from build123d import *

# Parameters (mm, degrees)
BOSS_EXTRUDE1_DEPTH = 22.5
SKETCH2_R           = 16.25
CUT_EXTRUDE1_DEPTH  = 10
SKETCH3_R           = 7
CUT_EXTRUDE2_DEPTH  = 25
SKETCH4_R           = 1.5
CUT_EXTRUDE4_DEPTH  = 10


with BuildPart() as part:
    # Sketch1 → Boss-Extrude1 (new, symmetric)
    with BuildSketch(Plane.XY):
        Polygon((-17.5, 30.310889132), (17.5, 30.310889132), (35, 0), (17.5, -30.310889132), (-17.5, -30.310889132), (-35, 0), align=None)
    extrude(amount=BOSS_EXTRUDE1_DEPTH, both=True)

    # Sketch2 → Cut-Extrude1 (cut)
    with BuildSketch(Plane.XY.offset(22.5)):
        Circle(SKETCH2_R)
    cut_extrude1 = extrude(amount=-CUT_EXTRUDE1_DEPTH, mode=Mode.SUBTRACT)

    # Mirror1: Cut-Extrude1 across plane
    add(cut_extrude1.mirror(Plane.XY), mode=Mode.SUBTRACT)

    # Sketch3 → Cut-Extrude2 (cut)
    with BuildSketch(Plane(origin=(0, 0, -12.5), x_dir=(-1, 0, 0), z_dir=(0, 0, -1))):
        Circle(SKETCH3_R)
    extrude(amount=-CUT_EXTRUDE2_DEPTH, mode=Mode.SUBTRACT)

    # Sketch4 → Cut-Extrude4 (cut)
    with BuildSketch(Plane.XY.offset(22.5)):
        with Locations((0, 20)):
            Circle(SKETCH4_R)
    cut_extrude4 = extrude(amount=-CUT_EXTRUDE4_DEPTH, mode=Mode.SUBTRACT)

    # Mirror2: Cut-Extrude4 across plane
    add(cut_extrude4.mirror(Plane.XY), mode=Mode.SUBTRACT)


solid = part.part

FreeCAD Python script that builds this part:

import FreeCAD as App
import Part
import Sketcher
Q = App.Units.Quantity

doc = App.newDocument("Part")
body = doc.addObject("PartDesign::Body", "Body")

sketch1 = body.newObject("Sketcher::SketchObject", "Sketch")
sketch1.AttachmentSupport = (doc.getObject("XY_Plane"), [""])
sketch1.MapMode = "FlatFace"
sketch1.addGeometry([
    Part.LineSegment(App.Vector(17.5, 30.310889, 0), App.Vector(-17.5, 30.310889, 0)),
    Part.LineSegment(App.Vector(-17.5, 30.310889, 0), App.Vector(-35, 0, 0)),
    Part.LineSegment(App.Vector(-35, 0, 0), App.Vector(-17.5, -30.310889, 0)),
    Part.LineSegment(App.Vector(-17.5, -30.310889, 0), App.Vector(17.5, -30.310889, 0)),
    Part.LineSegment(App.Vector(17.5, -30.310889, 0), App.Vector(35, 0, 0)),
    Part.LineSegment(App.Vector(35, 0, 0), App.Vector(17.5, 30.310889, 0)),
], False)
sketch1.addConstraint([
    Sketcher.Constraint("Coincident", 0, 2, 1, 1),
    Sketcher.Constraint("Coincident", 1, 2, 2, 1),
    Sketcher.Constraint("Coincident", 2, 2, 3, 1),
    Sketcher.Constraint("Coincident", 3, 2, 4, 1),
    Sketcher.Constraint("Coincident", 4, 2, 5, 1),
    Sketcher.Constraint("Coincident", 5, 2, 0, 1),
    Sketcher.Constraint("Horizontal", 0),
    Sketcher.Constraint("Horizontal", 3),
    Sketcher.Constraint("Symmetric", 0, 2, 3, 2, -1, 1),
    Sketcher.Constraint("Symmetric", 1, 2, 4, 2, -1, 1),
    Sketcher.Constraint("PointOnObject", 1, 2, -1),
    Sketcher.Constraint("Parallel", 2, 5),
    Sketcher.Constraint("Vertical", 0, 2, 2, 2),
    Sketcher.Constraint("DistanceX", 0, 2, 0, 1, Q("35 mm")),
    Sketcher.Constraint("Angle", 1, Q("-120 deg")),
    Sketcher.Constraint("Distance", 1, Q("35 mm")),
])
pad1 = body.newObject("PartDesign::Pad", "Pad")
pad1.Profile = sketch1
pad1.Length = 45
pad1.Midplane = True

sketch2 = body.newObject("Sketcher::SketchObject", "Sketch001")
sketch2.AttachmentSupport = (doc.getObject("XY_Plane"), [""])
sketch2.MapMode = "FlatFace"
sketch2.AttachmentOffset = App.Placement(App.Vector(0, 0, 22.5), App.Rotation())
sketch2.addGeometry(Part.Circle(App.Vector(0, 0, 0), App.Vector(0, 0, 1), 16.25), False)
sketch2.addConstraint([
    Sketcher.Constraint("Coincident", 0, 3, -1, 1),
    Sketcher.Constraint("Diameter", 0, Q("32.5 mm")),
])
pocket1 = body.newObject("PartDesign::Pocket", "Pocket")
pocket1.Profile = sketch2
pocket1.Length = 10
doc.recompute()

mirrored = body.newObject("PartDesign::Mirrored", "Mirrored")
mirrored.Originals = [pocket1]
mirrored.MirrorPlane = (doc.getObject("XY_Plane"), [""])
body.Tip = mirrored

sketch3 = body.newObject("Sketcher::SketchObject", "Sketch002")
sketch3.AttachmentSupport = (doc.getObject("XY_Plane"), [""])
sketch3.MapMode = "FlatFace"
sketch3.AttachmentOffset = App.Placement(App.Vector(0, 0, -12.5), App.Rotation())
sketch3.addGeometry(Part.Circle(App.Vector(0, 0, 0), App.Vector(0, 0, 1), 7), False)
sketch3.addConstraint([
    Sketcher.Constraint("Coincident", 0, 3, -1, 1),
    Sketcher.Constraint("Diameter", 0, Q("14 mm")),
])
pocket2 = body.newObject("PartDesign::Pocket", "Pocket001")
pocket2.Profile = sketch3
pocket2.Length = 25
pocket2.Reversed = True

sketch4 = body.newObject("Sketcher::SketchObject", "Sketch003")
sketch4.AttachmentSupport = (doc.getObject("XY_Plane"), [""])
sketch4.MapMode = "FlatFace"
sketch4.AttachmentOffset = App.Placement(App.Vector(0, 0, 22.5), App.Rotation())
sketch4.addGeometry(Part.Circle(App.Vector(0, 20, 0), App.Vector(0, 0, 1), 1.5), False)
sketch4.addConstraint([
    Sketcher.Constraint("PointOnObject", 0, 3, -2),
    Sketcher.Constraint("Diameter", 0, Q("3 mm")),
    Sketcher.Constraint("DistanceY", -1, 1, 0, 3, Q("20 mm")),
])
pocket3 = body.newObject("PartDesign::Pocket", "Pocket002")
pocket3.Profile = sketch4
pocket3.Length = 10
doc.recompute()

mirrored2 = body.newObject("PartDesign::Mirrored", "Mirrored001")
mirrored2.Originals = [pocket3]
mirrored2.MirrorPlane = (doc.getObject("XY_Plane"), [""])
body.Tip = mirrored2

doc.recompute()
